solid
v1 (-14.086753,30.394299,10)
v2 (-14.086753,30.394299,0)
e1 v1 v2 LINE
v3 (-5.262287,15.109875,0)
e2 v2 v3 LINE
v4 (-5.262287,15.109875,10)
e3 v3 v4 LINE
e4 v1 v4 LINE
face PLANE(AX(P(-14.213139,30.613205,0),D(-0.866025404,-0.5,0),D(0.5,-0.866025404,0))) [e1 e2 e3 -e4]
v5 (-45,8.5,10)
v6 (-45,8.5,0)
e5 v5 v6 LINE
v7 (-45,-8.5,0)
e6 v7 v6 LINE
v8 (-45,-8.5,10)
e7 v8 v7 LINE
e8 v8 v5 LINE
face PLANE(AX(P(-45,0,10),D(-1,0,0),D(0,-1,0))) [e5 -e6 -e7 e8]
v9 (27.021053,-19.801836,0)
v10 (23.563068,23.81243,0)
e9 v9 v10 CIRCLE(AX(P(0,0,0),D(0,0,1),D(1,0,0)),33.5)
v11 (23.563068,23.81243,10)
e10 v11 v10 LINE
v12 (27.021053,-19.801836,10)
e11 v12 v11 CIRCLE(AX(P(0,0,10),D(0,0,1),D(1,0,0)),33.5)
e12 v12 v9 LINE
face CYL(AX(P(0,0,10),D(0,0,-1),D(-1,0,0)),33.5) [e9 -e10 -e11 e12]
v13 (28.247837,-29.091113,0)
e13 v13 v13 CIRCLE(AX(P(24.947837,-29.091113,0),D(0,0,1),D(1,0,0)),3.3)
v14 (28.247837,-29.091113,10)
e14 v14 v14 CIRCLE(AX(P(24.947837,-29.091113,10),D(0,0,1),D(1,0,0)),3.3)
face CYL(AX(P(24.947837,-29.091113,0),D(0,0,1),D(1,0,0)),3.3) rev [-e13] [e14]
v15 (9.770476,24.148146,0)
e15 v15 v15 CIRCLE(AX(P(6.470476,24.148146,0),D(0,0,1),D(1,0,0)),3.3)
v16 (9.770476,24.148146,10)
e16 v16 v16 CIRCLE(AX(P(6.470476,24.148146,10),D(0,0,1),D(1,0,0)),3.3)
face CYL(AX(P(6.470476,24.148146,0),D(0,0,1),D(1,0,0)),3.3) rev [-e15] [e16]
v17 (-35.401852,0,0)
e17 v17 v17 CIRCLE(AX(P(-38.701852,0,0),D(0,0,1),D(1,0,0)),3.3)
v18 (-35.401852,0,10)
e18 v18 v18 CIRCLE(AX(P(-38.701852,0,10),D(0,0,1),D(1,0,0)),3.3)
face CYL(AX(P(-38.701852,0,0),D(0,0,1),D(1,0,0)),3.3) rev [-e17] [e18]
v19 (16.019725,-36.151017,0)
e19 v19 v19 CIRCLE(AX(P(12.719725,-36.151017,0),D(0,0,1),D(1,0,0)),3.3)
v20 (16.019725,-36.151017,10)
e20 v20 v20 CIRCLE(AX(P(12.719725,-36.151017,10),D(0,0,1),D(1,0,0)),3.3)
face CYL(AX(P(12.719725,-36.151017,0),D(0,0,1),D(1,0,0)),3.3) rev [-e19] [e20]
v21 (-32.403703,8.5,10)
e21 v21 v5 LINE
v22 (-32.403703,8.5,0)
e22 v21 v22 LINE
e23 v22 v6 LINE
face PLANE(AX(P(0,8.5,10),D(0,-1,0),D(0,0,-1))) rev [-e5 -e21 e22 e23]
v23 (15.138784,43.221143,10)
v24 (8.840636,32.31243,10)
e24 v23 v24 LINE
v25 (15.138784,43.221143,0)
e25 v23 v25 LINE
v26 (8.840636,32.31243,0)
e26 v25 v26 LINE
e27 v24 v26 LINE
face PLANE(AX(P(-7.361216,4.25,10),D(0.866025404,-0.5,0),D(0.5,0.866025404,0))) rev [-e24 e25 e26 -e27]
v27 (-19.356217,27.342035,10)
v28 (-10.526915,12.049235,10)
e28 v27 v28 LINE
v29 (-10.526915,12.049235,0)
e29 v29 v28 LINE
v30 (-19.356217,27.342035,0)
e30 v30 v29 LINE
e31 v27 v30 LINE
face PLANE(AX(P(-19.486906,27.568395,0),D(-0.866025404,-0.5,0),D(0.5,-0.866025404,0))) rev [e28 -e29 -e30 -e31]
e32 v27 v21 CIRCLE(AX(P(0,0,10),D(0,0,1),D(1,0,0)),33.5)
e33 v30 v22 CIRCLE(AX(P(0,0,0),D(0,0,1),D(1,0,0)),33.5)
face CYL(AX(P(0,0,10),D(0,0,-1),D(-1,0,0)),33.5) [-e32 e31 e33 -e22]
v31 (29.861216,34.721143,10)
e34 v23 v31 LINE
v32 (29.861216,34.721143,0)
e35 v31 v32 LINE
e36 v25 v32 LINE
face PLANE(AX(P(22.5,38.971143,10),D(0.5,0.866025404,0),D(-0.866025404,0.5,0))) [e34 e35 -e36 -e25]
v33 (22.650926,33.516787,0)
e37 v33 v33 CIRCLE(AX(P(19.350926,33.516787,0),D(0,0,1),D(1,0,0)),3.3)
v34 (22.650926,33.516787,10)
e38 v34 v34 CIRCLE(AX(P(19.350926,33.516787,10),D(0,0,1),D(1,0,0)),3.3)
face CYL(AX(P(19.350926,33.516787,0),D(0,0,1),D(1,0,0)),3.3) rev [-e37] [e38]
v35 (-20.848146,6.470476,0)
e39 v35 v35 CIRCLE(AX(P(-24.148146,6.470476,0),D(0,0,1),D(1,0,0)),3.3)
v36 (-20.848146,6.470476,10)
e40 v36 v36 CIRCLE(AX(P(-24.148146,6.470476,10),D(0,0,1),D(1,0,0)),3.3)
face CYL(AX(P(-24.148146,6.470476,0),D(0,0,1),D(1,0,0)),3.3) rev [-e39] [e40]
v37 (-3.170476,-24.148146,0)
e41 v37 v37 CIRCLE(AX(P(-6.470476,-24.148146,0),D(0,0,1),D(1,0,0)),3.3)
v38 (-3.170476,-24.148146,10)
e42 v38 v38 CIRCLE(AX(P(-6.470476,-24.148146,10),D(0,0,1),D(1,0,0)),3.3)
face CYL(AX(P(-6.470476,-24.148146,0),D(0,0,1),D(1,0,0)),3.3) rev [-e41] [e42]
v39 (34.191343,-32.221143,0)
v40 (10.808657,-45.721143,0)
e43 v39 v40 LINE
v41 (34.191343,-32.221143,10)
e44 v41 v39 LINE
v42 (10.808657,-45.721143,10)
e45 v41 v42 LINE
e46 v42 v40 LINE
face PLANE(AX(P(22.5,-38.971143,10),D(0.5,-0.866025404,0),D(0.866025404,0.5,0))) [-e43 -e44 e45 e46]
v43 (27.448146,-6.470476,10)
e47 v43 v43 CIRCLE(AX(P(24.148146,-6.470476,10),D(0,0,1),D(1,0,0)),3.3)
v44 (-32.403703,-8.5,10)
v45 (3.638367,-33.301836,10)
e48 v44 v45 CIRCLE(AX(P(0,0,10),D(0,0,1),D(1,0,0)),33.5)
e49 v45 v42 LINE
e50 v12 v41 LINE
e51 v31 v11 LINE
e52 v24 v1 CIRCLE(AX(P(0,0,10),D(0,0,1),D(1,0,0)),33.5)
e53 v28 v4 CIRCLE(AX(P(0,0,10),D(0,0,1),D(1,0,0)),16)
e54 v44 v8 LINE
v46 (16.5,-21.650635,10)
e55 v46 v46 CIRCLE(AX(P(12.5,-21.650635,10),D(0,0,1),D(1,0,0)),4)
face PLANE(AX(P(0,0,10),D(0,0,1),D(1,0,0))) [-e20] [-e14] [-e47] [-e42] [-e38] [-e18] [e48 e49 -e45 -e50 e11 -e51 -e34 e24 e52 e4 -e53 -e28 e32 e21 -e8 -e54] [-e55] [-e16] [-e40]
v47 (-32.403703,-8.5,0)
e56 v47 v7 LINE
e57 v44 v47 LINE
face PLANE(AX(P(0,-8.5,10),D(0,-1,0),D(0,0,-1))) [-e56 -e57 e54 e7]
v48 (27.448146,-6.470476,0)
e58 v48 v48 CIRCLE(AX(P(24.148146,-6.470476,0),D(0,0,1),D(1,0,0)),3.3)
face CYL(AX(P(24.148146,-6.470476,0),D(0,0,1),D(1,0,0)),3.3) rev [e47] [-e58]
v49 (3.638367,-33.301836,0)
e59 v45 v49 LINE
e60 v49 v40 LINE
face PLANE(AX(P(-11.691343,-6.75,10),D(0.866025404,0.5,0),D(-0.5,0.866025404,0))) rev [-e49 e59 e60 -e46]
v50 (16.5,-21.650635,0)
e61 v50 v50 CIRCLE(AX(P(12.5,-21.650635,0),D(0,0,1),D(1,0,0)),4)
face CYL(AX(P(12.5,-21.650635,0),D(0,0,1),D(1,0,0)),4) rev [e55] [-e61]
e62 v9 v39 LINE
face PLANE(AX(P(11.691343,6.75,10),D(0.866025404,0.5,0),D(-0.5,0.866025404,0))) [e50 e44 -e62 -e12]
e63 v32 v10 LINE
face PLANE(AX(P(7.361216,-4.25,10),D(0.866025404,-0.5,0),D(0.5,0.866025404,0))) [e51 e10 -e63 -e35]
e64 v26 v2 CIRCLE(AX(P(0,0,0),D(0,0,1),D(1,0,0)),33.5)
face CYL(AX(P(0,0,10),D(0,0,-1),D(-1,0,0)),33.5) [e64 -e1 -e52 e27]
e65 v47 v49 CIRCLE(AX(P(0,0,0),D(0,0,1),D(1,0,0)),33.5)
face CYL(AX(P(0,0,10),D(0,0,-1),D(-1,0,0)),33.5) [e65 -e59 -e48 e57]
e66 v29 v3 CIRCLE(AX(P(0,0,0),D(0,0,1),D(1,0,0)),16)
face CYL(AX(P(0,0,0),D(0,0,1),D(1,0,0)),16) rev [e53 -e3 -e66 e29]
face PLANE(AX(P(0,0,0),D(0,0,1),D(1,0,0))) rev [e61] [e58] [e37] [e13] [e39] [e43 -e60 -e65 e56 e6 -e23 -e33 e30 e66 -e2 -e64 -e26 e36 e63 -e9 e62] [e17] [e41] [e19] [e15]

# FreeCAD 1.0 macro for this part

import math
import FreeCAD as App
import Part
import Sketcher
from FreeCAD import Vector
Q = App.Units.Quantity

doc = App.newDocument("Part")
body = doc.addObject("PartDesign::Body", "Body")

sketch1 = body.newObject("Sketcher::SketchObject", "Sketch")
sketch1.AttachmentSupport = (doc.getObject("XY_Plane"), [""])
sketch1.MapMode = "FlatFace"
sketch1.addGeometry([
    Part.LineSegment(Vector(-45, -8, 0), Vector(-32, -8, 0)),
    Part.ArcOfCircle(Part.Circle(Vector(0, 0, 0), Vector(0, 0, 1), 34), math.radians(-165), math.radians(-84)),
    Part.LineSegment(Vector(4, -33, 0), Vector(11, -46, 0)),
    Part.LineSegment(Vector(11, -46, 0), Vector(34, -32, 0)),
    Part.LineSegment(Vector(34, -32, 0), Vector(27, -20, 0)),
    Part.ArcOfCircle(Part.Circle(Vector(0, 0, 0), Vector(0, 0, 1), 34), math.radians(-36), math.radians(0)),
    Part.ArcOfCircle(Part.Circle(Vector(0, 0, 0), Vector(0, 0, 1), 34), math.radians(0), math.radians(45)),
    Part.LineSegment(Vector(24, 24, 0), Vector(30, 35, 0)),
    Part.LineSegment(Vector(30, 35, 0), Vector(15, 43, 0)),
    Part.LineSegment(Vector(15, 43, 0), Vector(9, 32, 0)),
    Part.ArcOfCircle(Part.Circle(Vector(0, 0, 0), Vector(0, 0, 1), 34), math.radians(75), math.radians(165)),
    Part.LineSegment(Vector(-32, 8, 0), Vector(-45, 8, 0)),
    Part.LineSegment(Vector(-45, 8, 0), Vector(-45, -8, 0)),
], False)
sketch1.addConstraint([
    Sketcher.Constraint("Coincident", 0, 2, 1, 1),
    Sketcher.Constraint("Coincident", 1, 2, 2, 1),
    Sketcher.Constraint("Coincident", 2, 2, 3, 1),
    Sketcher.Constraint("Coincident", 3, 2, 4, 1),
    Sketcher.Constraint("Coincident", 4, 2, 5, 1),
    Sketcher.Constraint("Tangent", 5, 2, 6, 1),
    Sketcher.Constraint("Coincident", 6, 2, 7, 1),
    Sketcher.Constraint("Coincident", 7, 2, 8, 1),
    Sketcher.Constraint("Coincident", 8, 2, 9, 1),
    Sketcher.Constraint("Coincident", 9, 2, 10, 1),
    Sketcher.Constraint("Coincident", 10, 2, 11, 1),
    Sketcher.Constraint("Coincident", 11, 2, 12, 1),
    Sketcher.Constraint("Coincident", 12, 2, 0, 1),
    Sketcher.Constraint("Horizontal", 0),
    Sketcher.Constraint("Horizontal", 11),
    Sketcher.Constraint("Vertical", 12),
    Sketcher.Constraint("Coincident", 1, 3, -1, 1),
    Sketcher.Constraint("Coincident", 5, 3, -1, 1),
    Sketcher.Constraint("Coincident", 10, 3, -1, 1),
    Sketcher.Constraint("Equal", 1, 5),
    Sketcher.Constraint("Equal", 5, 6),
    Sketcher.Constraint("Equal", 6, 10),
    Sketcher.Constraint("PointOnObject", 5, 2, -1),
    Sketcher.Constraint("Perpendicular", 2, 3),
    Sketcher.Constraint("Perpendicular", 3, 4),
    Sketcher.Constraint("Perpendicular", 7, 8),
    Sketcher.Constraint("Perpendicular", 8, 9),
    Sketcher.Constraint("Vertical", 0, 2, 10, 2),
    Sketcher.Constraint("Equal", 2, 4),
    Sketcher.Constraint("Equal", 7, 9),
    Sketcher.Constraint("Radius", 1, Q("33.5 mm")),
    Sketcher.Constraint("DistanceY", 12, 2, 12, 1, Q("17 mm")),
    Sketcher.Constraint("Angle", 2, Q("-60 deg")),
    Sketcher.Constraint("Angle", 7, Q("60 deg")),
    Sketcher.Constraint("Distance", 3, Q("27 mm")),
    Sketcher.Constraint("Distance", 8, Q("17 mm")),
    Sketcher.Constraint("DistanceX", 11, 2, -1, 1, Q("45 mm")),
    Sketcher.Constraint("Distance", 2, Q("14.340581 mm")),
    Sketcher.Constraint("DistanceX", 6, 2, 7, 2, Q("6.298148 mm")),
])
pad1 = body.newObject("PartDesign::Pad", "Pad")
pad1.Profile = sketch1
pad1.Length = 10

sketch2 = body.newObject("Sketcher::SketchObject", "Sketch001")
sketch2.AttachmentSupport = (doc.getObject("XY_Plane"), [""])
sketch2.MapMode = "FlatFace"
sketch2.AttachmentOffset = App.Placement(Vector(0, 0, 10), App.Rotation())
sketch2.addGeometry([
    Part.ArcOfCircle(Part.Circle(Vector(0, 0, 0), Vector(0, 0, 1), 16), math.radians(131), math.radians(469)),
    Part.LineSegment(Vector(-5.3, 15.1, 0), Vector(-14.2, 30.6, 0)),
    Part.LineSegment(Vector(-14.2, 30.6, 0), Vector(-19.5, 27.6, 0)),
    Part.LineSegment(Vector(-19.5, 27.6, 0), Vector(-10.5, 12, 0)),
    Part.Circle(Vector(12.5, -21.7, 0), Vector(0, 0, 1), 4),
    Part.Circle(Vector(24.1, -6.5, 0), Vector(0, 0, 1), 3.3),
    Part.Circle(Vector(-6.5, -24.1, 0), Vector(0, 0, 1), 3.3),
    Part.Circle(Vector(6.5, 24.1, 0), Vector(0, 0, 1), 3.3),
    Part.Circle(Vector(-24.1, 6.5, 0), Vector(0, 0, 1), 3.3),
    Part.Circle(Vector(24.9, -29.1, 0), Vector(0, 0, 1), 3.3),
    Part.Circle(Vector(12.7, -36.2, 0), Vector(0, 0, 1), 3.3),
    Part.Circle(Vector(-38.7, 0, 0), Vector(0, 0, 1), 3.3),
    Part.Circle(Vector(19.4, 33.5, 0), Vector(0, 0, 1), 3.3),
], False)
sketch2.addConstraint([
    Sketcher.Constraint("Coincident", 0, 2, 1, 1),
    Sketcher.Constraint("Coincident", 1, 2, 2, 1),
    Sketcher.Constraint("Coincident", 2, 2, 3, 1),
    Sketcher.Constraint("Coincident", 3, 2, 0, 1),
    Sketcher.Constraint("Coincident", 0, 3, -1, 1),
    Sketcher.Constraint("Equal", 5, 6),
    Sketcher.Constraint("Equal", 6, 7),
    Sketcher.Constraint("Equal", 7, 8),
    Sketcher.Constraint("Equal", 8, 9),
    Sketcher.Constraint("Equal", 9, 10),
    Sketcher.Constraint("Equal", 10, 11),
    Sketcher.Constraint("Equal", 11, 12),
    Sketcher.Constraint("Symmetric", 6, 3, 7, 3, -1, 1),
    Sketcher.Constraint("Symmetric", 5, 3, 8, 3, -1, 1),
    Sketcher.Constraint("PointOnObject", 11, 3, -1),
    Sketcher.Constraint("Perpendicular", 1, 2),
    Sketcher.Constraint("Perpendicular", 2, 3),
    Sketcher.Constraint("Diameter", 4, Q("8 mm")),
    Sketcher.Constraint("Radius", 0, Q("16 mm")),
    Sketcher.Constraint("Diameter", 5, Q("6.6 mm")),
    Sketcher.Constraint("Angle", 1, Q("120 deg")),
    Sketcher.Constraint("DistanceX", -1, 1, 4, 3, Q("12.5 mm")),
    Sketcher.Constraint("DistanceX", 6, 3, 10, 3, Q("19.190201 mm")),
    Sketcher.Constraint("DistanceY", 8, 3, 0, 2, Q("8.639399 mm")),
    Sketcher.Constraint("Distance", 2, Q("6.089622 mm")),
    Sketcher.Constraint("DistanceX", 11, 3, -1, 1, Q("38.701852 mm")),
    Sketcher.Constraint("DistanceX", 1, 2, -1, 1, Q("14.213139 mm")),
    Sketcher.Constraint("DistanceY", 4, 3, 5, 3, Q("15.180159 mm")),
    Sketcher.Constraint("DistanceY", 6, 3, 4, 3, Q("2.497511 mm")),
    Sketcher.Constraint("DistanceX", 6, 3, 5, 3, Q("30.618622 mm")),
    Sketcher.Constraint("DistanceX", 7, 3, 5, 3, Q("17.67767 mm")),
    Sketcher.Constraint("DistanceY", 5, 3, 7, 3, Q("30.618622 mm")),
    Sketcher.Constraint("DistanceY", 9, 3, 4, 3, Q("7.440478 mm")),
    Sketcher.Constraint("DistanceX", 5, 3, 9, 3, Q("0.799691 mm")),
    Sketcher.Constraint("DistanceY", 10, 3, 6, 3, Q("12.002872 mm")),
    Sketcher.Constraint("DistanceX", 7, 3, 12, 3, Q("12.88045 mm")),
    Sketcher.Constraint("DistanceY", 7, 3, 12, 3, Q("9.368641 mm")),
])
pocket1 = body.newObject("PartDesign::Pocket", "Pocket")
pocket1.Profile = sketch2
pocket1.Type = "ThroughAll"

doc.recompute()
